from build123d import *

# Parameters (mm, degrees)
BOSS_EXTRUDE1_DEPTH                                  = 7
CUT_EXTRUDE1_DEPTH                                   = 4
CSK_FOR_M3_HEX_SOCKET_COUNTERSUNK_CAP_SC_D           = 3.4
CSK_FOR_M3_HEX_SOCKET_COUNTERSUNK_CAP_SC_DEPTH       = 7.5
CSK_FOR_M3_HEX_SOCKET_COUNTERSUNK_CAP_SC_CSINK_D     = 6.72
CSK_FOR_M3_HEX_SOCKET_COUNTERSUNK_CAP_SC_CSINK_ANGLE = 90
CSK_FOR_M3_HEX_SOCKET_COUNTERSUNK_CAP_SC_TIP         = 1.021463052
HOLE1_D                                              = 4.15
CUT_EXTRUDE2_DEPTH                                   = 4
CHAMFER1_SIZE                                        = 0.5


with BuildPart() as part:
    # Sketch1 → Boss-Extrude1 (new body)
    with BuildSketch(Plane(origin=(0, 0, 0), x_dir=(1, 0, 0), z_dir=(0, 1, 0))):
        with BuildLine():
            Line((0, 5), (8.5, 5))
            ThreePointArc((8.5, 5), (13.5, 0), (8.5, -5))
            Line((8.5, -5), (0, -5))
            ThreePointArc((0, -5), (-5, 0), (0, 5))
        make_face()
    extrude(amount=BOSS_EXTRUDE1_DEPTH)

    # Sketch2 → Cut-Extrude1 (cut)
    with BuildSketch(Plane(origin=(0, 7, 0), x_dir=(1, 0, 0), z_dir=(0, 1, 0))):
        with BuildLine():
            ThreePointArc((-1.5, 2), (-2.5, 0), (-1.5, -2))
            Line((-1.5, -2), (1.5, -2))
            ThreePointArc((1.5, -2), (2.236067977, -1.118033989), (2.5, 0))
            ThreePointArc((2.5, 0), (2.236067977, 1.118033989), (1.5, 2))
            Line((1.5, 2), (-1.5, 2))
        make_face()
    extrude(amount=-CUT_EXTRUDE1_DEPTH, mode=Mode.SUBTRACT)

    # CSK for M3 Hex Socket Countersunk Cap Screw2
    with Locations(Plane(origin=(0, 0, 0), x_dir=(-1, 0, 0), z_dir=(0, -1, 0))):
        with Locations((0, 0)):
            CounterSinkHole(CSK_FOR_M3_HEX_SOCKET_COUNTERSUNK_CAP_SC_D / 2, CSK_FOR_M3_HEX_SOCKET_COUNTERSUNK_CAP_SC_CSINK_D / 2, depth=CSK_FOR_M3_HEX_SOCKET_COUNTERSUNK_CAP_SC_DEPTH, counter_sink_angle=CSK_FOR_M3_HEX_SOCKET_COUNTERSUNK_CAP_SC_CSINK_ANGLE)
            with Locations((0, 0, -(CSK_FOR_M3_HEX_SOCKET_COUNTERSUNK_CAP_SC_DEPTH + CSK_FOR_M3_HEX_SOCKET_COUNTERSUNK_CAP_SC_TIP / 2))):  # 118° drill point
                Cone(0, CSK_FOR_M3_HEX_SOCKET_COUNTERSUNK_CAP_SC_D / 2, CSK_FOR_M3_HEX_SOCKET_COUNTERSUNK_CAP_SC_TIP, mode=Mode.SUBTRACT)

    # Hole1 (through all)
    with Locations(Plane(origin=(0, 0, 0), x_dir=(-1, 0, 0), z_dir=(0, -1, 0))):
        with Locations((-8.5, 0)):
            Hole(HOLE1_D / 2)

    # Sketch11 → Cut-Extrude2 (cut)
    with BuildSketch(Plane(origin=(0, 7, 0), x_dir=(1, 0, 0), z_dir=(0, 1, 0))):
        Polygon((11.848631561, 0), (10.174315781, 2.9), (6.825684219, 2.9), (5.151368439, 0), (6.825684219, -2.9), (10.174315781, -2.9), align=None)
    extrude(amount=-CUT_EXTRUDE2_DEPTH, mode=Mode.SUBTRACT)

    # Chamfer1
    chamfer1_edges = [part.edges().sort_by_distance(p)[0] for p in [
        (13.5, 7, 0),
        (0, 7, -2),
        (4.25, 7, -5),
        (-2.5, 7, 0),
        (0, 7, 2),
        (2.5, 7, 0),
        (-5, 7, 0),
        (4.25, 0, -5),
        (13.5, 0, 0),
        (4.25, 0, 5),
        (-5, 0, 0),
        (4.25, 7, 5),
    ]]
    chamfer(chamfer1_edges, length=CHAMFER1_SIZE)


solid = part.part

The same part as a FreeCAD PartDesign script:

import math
import FreeCAD as App
import Part
import Sketcher

V = App.Vector
Q = App.Units.Quantity


def edges_at(feature, points):
    """Names of the edges that pass closest to the given points."""
    edges = feature.Shape.Edges
    near = lambda p: min(range(len(edges)), key=lambda i: edges[i].distToShape(Part.Vertex(*p))[0])
    return sorted({f"Edge{near(p) + 1}" for p in points})


def add_polygon(sketch, points):
    """Adds a closed chain of lines whose ends are joined by coincident constraints."""
    first, n = sketch.GeometryCount, len(points)
    for a, b in zip(points, points[1:] + points[:1]):
        sketch.addGeometry(Part.LineSegment(App.Vector(*a, 0), App.Vector(*b, 0)), False)
    for i in range(n):
        sketch.addConstraint(Sketcher.Constraint("Coincident", first + i, 2, first + (i + 1) % n, 1))

doc = App.newDocument("Part")
params = doc.addObject("Spreadsheet::Sheet", "Params")
for row, (alias, value) in enumerate([
    ("sketch1_radius", "5 mm"),
    ("sketch1_width", "8.5 mm"),
    ("pad1_length", "7 mm"),
    ("sketch2_radius", "2.5 mm"),
    ("sketch2_width", "3 mm"),
    ("pocket1_length", "4 mm"),
    ("sketch3_diameter", "3.4 mm"),
    ("hole_diameter", "3.4 mm"),
    ("hole_depth", "7.5 mm"),
    ("hole_csink_diameter", "6.72 mm"),
    ("sketch4_diameter", "4.15 mm"),
    ("hole2_diameter", "4.15 mm"),
    ("pocket2_length", "4 mm"),
    ("chamfer_size", "0.5 mm"),
], start=1):
    params.set(f"A{row}", alias)
    params.set(f"B{row}", "=" + value)
    params.setAlias(f"B{row}", alias)

body = doc.addObject("PartDesign::Body", "Body")

# Sketch on XZ plane
sketch1 = body.newObject("Sketcher::SketchObject", "Sketch")
sketch1.AttachmentSupport = (doc.getObject("XZ_Plane"), [""])
sketch1.MapMode = "FlatFace"
sketch1.addGeometry([
    Part.LineSegment(V(8, -5, 0), V(0, -5, 0)),
    Part.ArcOfCircle(Part.Circle(V(0, 0, 0), V(0, 0, 1), 5), math.radians(90), math.radians(270)),
    Part.LineSegment(V(0, 5, 0), V(8, 5, 0)),
    Part.ArcOfCircle(Part.Circle(V(8, 0, 0), V(0, 0, 1), 5), math.radians(-90), math.radians(90)),
], False)
sketch1.addConstraint([
    Sketcher.Constraint("Tangent", 0, 2, 1, 2),
    Sketcher.Constraint("Tangent", 1, 1, 2, 1),
    Sketcher.Constraint("Tangent", 2, 2, 3, 2),
    Sketcher.Constraint("Tangent", 3, 1, 0, 1),
    Sketcher.Constraint("Horizontal", 0),
    Sketcher.Constraint("Horizontal", 2),
    Sketcher.Constraint("Coincident", 1, 3, -1, 1),
    Sketcher.Constraint("Radius", 1, 5.0),
    Sketcher.Constraint("DistanceX", 0, 2, 0, 1, 8.5),
])
sketch1.setExpression("Constraints[7]", "Params.sketch1_radius")
sketch1.setExpression("Constraints[8]", "Params.sketch1_width")
pad1 = body.newObject("PartDesign::Pad", "Pad")
pad1.Profile = sketch1
pad1.setExpression("Length", "Params.pad1_length")
pad1.Reversed = True

# Sketch on XZ plane
sketch2 = body.newObject("Sketcher::SketchObject", "Sketch001")
sketch2.AttachmentSupport = (doc.getObject("XZ_Plane"), [""])
sketch2.MapMode = "FlatFace"
sketch2.AttachmentOffset = App.Placement(V(0, 0, -7), App.Rotation())
sketch2.addGeometry([
    Part.ArcOfCircle(Part.Circle(V(0, 0, 0), V(0, 0, 1), 2.5), math.radians(127), math.radians(233)),  # 0
    Part.LineSegment(V(-1.5, 2, 0), V(1.5, 2, 0)),  # 1
    Part.ArcOfCircle(Part.Circle(V(0, 0, 0), V(0, 0, 1), 2.5), math.radians(0), math.radians(53)),  # 2
    Part.ArcOfCircle(Part.Circle(V(0, 0, 0), V(0, 0, 1), 2.5), math.radians(-53), math.radians(0)),  # 3
    Part.LineSegment(V(1.5, -2, 0), V(-1.5, -2, 0)),  # 4
], False)
sketch2.addConstraint([
    Sketcher.Constraint("Coincident", 0, 1, 1, 1),
    Sketcher.Constraint("Coincident", 1, 2, 2, 2),
    Sketcher.Constraint("Tangent", 2, 1, 3, 2),
    Sketcher.Constraint("Coincident", 3, 1, 4, 1),
    Sketcher.Constraint("Coincident", 4, 2, 0, 2),
    Sketcher.Constraint("Horizontal", 1),
    Sketcher.Constraint("Horizontal", 4),
    Sketcher.Constraint("Coincident", 0, 3, -1, 1),
    Sketcher.Constraint("Coincident", 2, 3, -1, 1),
    Sketcher.Constraint("Equal", 0, 2),
    Sketcher.Constraint("Equal", 2, 3),
    Sketcher.Constraint("PointOnObject", 2, 1, -1),
    Sketcher.Constraint("Vertical", 1, 2, 3, 1),
    Sketcher.Constraint("Radius", 0, 2.5),
    Sketcher.Constraint("DistanceX", 1, 1, 1, 2, 3.0),
])
sketch2.setExpression("Constraints[13]", "Params.sketch2_radius")
sketch2.setExpression("Constraints[14]", "Params.sketch2_width")
pocket1 = body.newObject("PartDesign::Pocket", "Pocket")
pocket1.Profile = sketch2
pocket1.setExpression("Length", "Params.pocket1_length")
pocket1.Reversed = True

# Sketch on XZ plane
sketch3 = body.newObject("Sketcher::SketchObject", "Sketch002")
sketch3.AttachmentSupport = (doc.getObject("XZ_Plane"), [""])
sketch3.MapMode = "FlatFace"
sketch3.addGeometry(Part.Circle(V(0, 0, 0), V(0, 0, 1), 1.7), False)
sketch3.addConstraint([
    Sketcher.Constraint("Coincident", 0, 3, -1, 1),
    Sketcher.Constraint("Diameter", 0, 3.4),
])
sketch3.setExpression("Constraints[1]", "Params.sketch3_diameter")
doc.recompute()
hole = body.newObject("PartDesign::Hole", "Hole")
hole.Profile = sketch3
hole.ThreadType = "None"
hole.setExpression("Diameter", "Params.hole_diameter")
hole.DepthType = "Dimension"
hole.setExpression("Depth", "Params.hole_depth")
hole.DrillPoint = "Angled"
hole.DrillPointAngle = 118
hole.HoleCutType = "Countersink"
hole.setExpression("HoleCutDiameter", "Params.hole_csink_diameter")
hole.HoleCutCountersinkAngle = 90

# Sketch on XZ plane
sketch4 = body.newObject("Sketcher::SketchObject", "Sketch003")
sketch4.AttachmentSupport = (doc.getObject("XZ_Plane"), [""])
sketch4.MapMode = "FlatFace"
sketch4.addGeometry(Part.Circle(V(8.5, 0, 0), V(0, 0, 1), 2.1), False)
sketch4.addConstraint([
    Sketcher.Constraint("PointOnObject", 0, 3, -1),
    Sketcher.Constraint("Diameter", 0, 4.15),
    Sketcher.Constraint("DistanceX", -1, 1, 0, 3, 8.5),
])
sketch4.setExpression("Constraints[1]", "Params.sketch4_diameter")
doc.recompute()
hole2 = body.newObject("PartDesign::Hole", "Hole001")
hole2.Profile = sketch4
hole2.ThreadType = "None"
hole2.setExpression("Diameter", "Params.hole2_diameter")
hole2.DepthType = "ThroughAll"

# Sketch on XZ plane
sketch5 = body.newObject("Sketcher::SketchObject", "Sketch004")
sketch5.AttachmentSupport = (doc.getObject("XZ_Plane"), [""])
sketch5.MapMode = "FlatFace"
sketch5.AttachmentOffset = App.Placement(V(0, 0, -7), App.Rotation())
add_polygon(sketch5, [(11.8, 0), (10.2, -2.9), (6.8, -2.9), (5.2, 0), (6.8, 2.9), (10.2, 2.9)])  # lines 0-5
sketch5.addConstraint([
    Sketcher.Constraint("Horizontal", 1),
    Sketcher.Constraint("Horizontal", 4),
    Sketcher.Constraint("Symmetric", 1, 2, 3, 2, -1),
    Sketcher.Constraint("PointOnObject", 2, 2, -1),
    Sketcher.Constraint("PointOnObject", 5, 2, -1),
    Sketcher.Constraint("Parallel", 0, 3),
    Sketcher.Constraint("Parallel", 2, 5),
    Sketcher.Constraint("Angle", 0, Q("-120 deg")),
    Sketcher.Constraint("DistanceY", 0, 2, -1, 1, 2.9),
    Sketcher.Constraint("DistanceX", 1, 2, 1, 1, 3.348632),
    Sketcher.Constraint("DistanceX", -1, 1, 2, 2, 5.151368),
])
pocket2 = body.newObject("PartDesign::Pocket", "Pocket001")
pocket2.Profile = sketch5
pocket2.setExpression("Length", "Params.pocket2_length")
pocket2.Reversed = True
doc.recompute()

chamfer = body.newObject("PartDesign::Chamfer", "Chamfer")
chamfer.Base = (pocket2, edges_at(pocket2, [
    (13.5, 7, 0),
    (0, 7, -2),
    (4.25, 7, -5),
    (-2.5, 7, 0),
    (0, 7, 2),
    (2.236, 7, -1.118),
    (-5, 7, 0),
    (4.25, 0, -5),
    (13.5, 0, 0),
    (4.25, 0, 5),
    (-5, 0, 0),
    (4.25, 7, 5),
]))
chamfer.setExpression("Size", "Params.chamfer_size")

doc.recompute()
